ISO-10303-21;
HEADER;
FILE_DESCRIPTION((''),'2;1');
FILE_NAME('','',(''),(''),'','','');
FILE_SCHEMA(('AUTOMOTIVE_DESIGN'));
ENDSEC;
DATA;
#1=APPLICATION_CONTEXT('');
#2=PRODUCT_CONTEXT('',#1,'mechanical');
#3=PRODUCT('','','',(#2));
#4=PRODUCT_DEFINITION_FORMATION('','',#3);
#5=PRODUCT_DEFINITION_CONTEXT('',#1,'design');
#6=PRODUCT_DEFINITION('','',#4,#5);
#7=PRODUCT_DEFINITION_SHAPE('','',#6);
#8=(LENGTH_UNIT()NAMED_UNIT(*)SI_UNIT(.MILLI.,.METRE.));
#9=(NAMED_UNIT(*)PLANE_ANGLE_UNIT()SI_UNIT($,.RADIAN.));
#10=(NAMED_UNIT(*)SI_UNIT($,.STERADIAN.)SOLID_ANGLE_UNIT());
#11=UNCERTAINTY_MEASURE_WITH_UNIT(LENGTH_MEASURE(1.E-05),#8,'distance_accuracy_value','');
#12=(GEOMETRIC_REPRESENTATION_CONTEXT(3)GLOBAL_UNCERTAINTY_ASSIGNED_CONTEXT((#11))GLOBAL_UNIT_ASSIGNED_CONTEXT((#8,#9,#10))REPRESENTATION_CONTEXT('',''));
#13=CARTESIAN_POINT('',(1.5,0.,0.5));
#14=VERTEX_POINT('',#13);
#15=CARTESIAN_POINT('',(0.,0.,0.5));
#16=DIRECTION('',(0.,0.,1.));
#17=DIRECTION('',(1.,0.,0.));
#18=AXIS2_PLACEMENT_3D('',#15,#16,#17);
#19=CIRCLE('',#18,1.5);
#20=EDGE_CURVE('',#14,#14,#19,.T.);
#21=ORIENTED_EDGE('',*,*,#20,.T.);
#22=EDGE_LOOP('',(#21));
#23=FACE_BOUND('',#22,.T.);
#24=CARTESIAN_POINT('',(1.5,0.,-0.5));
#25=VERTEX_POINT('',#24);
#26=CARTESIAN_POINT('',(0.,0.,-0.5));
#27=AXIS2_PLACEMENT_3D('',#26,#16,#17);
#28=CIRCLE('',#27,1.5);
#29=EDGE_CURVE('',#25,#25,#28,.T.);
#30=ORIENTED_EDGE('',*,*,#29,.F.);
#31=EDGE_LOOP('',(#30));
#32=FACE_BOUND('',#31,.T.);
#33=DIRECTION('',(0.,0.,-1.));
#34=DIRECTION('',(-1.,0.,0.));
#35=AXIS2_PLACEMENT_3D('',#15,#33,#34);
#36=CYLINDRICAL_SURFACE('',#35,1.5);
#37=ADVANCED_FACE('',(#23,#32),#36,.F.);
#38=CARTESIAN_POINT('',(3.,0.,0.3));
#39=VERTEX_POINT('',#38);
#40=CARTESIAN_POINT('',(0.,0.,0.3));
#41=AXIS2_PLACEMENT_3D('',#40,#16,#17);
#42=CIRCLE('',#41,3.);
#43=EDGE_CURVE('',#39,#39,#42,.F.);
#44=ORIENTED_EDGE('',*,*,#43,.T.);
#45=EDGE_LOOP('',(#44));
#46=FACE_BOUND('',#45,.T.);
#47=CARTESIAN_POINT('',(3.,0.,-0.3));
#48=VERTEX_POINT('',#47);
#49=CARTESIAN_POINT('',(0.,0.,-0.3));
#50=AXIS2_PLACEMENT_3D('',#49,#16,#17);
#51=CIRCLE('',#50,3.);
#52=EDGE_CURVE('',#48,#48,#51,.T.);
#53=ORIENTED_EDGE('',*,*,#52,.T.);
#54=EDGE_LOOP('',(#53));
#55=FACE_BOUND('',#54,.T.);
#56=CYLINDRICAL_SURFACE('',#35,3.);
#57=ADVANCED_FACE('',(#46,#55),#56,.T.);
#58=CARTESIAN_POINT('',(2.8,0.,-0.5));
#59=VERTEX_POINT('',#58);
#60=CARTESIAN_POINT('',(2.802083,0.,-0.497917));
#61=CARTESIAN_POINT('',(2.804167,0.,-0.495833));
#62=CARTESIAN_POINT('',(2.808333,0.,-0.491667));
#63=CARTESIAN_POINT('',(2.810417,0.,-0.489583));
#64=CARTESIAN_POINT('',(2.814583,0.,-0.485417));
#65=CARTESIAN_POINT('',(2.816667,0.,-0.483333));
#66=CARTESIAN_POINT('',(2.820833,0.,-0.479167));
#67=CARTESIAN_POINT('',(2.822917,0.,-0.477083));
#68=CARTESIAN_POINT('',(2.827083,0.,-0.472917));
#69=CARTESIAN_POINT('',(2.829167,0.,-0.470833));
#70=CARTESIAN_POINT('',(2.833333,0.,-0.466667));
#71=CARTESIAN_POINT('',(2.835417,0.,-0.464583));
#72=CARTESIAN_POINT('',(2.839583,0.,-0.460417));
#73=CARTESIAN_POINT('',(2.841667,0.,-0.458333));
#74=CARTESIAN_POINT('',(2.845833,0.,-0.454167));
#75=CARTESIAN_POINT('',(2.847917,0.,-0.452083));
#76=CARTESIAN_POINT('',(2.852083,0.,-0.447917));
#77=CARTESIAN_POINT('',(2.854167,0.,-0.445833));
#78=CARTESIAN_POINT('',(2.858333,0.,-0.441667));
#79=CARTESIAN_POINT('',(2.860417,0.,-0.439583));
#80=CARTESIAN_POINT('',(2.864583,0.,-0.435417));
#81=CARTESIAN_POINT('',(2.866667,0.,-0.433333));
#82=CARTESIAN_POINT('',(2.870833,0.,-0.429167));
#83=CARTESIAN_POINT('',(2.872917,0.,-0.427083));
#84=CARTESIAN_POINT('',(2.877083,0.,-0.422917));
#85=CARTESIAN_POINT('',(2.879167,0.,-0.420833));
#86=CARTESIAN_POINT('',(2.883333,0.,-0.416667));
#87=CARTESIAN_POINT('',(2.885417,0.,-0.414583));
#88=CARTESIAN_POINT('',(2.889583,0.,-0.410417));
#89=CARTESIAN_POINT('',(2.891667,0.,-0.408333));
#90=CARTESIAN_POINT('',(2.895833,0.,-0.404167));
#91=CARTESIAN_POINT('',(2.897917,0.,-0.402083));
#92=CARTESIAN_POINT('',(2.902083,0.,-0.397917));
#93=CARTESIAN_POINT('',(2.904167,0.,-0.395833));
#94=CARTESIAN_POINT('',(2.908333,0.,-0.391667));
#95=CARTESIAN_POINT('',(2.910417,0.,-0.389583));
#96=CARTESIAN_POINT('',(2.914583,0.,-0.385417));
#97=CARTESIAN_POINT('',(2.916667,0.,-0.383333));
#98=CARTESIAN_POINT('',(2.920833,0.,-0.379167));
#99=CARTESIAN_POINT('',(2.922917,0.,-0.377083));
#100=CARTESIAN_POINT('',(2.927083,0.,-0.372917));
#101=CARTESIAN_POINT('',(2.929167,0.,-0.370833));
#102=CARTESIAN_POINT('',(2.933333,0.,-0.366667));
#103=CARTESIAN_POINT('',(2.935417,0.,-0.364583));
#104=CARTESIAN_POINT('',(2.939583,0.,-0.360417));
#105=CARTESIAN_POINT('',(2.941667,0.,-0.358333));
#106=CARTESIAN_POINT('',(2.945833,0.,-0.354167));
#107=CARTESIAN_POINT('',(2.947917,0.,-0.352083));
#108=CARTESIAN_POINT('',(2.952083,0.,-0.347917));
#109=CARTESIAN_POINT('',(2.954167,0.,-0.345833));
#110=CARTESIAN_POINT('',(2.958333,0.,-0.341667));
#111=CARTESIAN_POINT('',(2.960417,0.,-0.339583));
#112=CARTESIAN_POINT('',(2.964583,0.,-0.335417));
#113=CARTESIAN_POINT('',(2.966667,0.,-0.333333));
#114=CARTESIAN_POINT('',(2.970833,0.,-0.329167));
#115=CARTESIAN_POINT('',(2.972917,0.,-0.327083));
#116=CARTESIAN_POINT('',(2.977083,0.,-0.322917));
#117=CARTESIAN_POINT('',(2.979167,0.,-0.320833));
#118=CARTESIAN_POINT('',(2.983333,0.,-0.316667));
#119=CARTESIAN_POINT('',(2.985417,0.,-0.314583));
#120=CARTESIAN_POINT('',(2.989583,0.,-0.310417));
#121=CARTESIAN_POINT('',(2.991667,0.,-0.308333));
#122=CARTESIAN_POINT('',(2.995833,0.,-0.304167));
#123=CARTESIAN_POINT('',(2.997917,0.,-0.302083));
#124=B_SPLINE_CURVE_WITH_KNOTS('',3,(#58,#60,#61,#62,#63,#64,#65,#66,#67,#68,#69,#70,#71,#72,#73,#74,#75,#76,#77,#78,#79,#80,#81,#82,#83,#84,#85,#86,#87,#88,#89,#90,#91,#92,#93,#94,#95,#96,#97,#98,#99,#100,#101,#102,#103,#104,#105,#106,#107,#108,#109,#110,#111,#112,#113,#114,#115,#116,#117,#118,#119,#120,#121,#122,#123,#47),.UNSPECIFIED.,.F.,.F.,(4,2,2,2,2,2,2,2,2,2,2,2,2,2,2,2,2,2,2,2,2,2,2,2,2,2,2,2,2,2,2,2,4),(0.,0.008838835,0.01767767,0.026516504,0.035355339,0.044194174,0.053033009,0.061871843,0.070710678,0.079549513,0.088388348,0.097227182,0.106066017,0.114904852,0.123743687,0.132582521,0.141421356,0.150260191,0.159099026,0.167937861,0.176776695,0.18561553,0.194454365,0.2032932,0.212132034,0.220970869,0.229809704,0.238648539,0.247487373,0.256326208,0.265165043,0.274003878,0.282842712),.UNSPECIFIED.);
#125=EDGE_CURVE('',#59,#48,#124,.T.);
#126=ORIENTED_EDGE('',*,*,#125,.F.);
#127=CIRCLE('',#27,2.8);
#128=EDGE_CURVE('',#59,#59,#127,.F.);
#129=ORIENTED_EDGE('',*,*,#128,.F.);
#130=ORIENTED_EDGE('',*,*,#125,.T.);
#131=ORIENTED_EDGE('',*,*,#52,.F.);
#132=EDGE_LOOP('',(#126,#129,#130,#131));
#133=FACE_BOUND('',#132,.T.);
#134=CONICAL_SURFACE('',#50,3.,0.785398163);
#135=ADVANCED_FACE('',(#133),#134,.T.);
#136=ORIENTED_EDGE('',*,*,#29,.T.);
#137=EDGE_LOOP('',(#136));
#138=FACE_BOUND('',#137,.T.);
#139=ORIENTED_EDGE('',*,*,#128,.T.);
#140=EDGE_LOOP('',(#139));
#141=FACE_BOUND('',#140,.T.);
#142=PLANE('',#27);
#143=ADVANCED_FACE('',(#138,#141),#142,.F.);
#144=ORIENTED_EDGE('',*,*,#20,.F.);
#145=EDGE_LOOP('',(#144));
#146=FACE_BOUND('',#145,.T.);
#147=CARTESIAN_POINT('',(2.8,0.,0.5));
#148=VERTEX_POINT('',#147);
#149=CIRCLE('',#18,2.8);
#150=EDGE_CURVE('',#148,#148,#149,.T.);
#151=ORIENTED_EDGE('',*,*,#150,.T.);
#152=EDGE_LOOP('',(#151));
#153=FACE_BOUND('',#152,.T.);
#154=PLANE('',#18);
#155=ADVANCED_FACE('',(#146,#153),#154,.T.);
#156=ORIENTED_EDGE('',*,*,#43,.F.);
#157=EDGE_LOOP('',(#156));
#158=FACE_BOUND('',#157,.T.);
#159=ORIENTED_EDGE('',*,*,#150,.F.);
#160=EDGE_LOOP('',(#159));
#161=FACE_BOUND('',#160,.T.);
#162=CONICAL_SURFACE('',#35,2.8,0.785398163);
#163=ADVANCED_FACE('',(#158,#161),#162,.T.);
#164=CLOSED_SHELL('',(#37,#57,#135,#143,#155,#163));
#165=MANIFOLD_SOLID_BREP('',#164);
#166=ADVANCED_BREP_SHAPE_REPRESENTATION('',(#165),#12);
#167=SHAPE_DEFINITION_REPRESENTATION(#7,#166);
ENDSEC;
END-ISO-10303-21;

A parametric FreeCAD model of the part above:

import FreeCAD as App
import Part
import Sketcher
Q = App.Units.Quantity


def edges_at(feature, points):
    """Names of the edges that pass closest to the given points."""
    edges = feature.Shape.Edges
    near = lambda p: min(range(len(edges)), key=lambda i: edges[i].distToShape(Part.Vertex(*p))[0])
    return sorted({f"Edge{near(p) + 1}" for p in points})

doc = App.newDocument("Part")
body = doc.addObject("PartDesign::Body", "Body")

sketch1 = body.newObject("Sketcher::SketchObject", "Sketch")
sketch1.AttachmentSupport = (doc.getObject("XY_Plane"), [""])
sketch1.MapMode = "FlatFace"
sketch1.addGeometry([
    Part.Circle(App.Vector(0, 0, 0), App.Vector(0, 0, 1), 3),
    Part.Circle(App.Vector(0, 0, 0), App.Vector(0, 0, 1), 1.5),
], False)
sketch1.addConstraint([
    Sketcher.Constraint("Coincident", 0, 3, -1, 1),
    Sketcher.Constraint("Coincident", 1, 3, -1, 1),
    Sketcher.Constraint("Diameter", 0, Q("6 mm")),
    Sketcher.Constraint("Diameter", 1, Q("3 mm")),
])
pad1 = body.newObject("PartDesign::Pad", "Pad")
pad1.Profile = sketch1
pad1.Length = 1
pad1.Midplane = True
doc.recompute()

chamfer = body.newObject("PartDesign::Chamfer", "Chamfer")
chamfer.Base = (pad1, edges_at(pad1, [(-3, 0, -0.5), (-3, 0, 0.5)]))
chamfer.Size = 0.2

doc.recompute()
